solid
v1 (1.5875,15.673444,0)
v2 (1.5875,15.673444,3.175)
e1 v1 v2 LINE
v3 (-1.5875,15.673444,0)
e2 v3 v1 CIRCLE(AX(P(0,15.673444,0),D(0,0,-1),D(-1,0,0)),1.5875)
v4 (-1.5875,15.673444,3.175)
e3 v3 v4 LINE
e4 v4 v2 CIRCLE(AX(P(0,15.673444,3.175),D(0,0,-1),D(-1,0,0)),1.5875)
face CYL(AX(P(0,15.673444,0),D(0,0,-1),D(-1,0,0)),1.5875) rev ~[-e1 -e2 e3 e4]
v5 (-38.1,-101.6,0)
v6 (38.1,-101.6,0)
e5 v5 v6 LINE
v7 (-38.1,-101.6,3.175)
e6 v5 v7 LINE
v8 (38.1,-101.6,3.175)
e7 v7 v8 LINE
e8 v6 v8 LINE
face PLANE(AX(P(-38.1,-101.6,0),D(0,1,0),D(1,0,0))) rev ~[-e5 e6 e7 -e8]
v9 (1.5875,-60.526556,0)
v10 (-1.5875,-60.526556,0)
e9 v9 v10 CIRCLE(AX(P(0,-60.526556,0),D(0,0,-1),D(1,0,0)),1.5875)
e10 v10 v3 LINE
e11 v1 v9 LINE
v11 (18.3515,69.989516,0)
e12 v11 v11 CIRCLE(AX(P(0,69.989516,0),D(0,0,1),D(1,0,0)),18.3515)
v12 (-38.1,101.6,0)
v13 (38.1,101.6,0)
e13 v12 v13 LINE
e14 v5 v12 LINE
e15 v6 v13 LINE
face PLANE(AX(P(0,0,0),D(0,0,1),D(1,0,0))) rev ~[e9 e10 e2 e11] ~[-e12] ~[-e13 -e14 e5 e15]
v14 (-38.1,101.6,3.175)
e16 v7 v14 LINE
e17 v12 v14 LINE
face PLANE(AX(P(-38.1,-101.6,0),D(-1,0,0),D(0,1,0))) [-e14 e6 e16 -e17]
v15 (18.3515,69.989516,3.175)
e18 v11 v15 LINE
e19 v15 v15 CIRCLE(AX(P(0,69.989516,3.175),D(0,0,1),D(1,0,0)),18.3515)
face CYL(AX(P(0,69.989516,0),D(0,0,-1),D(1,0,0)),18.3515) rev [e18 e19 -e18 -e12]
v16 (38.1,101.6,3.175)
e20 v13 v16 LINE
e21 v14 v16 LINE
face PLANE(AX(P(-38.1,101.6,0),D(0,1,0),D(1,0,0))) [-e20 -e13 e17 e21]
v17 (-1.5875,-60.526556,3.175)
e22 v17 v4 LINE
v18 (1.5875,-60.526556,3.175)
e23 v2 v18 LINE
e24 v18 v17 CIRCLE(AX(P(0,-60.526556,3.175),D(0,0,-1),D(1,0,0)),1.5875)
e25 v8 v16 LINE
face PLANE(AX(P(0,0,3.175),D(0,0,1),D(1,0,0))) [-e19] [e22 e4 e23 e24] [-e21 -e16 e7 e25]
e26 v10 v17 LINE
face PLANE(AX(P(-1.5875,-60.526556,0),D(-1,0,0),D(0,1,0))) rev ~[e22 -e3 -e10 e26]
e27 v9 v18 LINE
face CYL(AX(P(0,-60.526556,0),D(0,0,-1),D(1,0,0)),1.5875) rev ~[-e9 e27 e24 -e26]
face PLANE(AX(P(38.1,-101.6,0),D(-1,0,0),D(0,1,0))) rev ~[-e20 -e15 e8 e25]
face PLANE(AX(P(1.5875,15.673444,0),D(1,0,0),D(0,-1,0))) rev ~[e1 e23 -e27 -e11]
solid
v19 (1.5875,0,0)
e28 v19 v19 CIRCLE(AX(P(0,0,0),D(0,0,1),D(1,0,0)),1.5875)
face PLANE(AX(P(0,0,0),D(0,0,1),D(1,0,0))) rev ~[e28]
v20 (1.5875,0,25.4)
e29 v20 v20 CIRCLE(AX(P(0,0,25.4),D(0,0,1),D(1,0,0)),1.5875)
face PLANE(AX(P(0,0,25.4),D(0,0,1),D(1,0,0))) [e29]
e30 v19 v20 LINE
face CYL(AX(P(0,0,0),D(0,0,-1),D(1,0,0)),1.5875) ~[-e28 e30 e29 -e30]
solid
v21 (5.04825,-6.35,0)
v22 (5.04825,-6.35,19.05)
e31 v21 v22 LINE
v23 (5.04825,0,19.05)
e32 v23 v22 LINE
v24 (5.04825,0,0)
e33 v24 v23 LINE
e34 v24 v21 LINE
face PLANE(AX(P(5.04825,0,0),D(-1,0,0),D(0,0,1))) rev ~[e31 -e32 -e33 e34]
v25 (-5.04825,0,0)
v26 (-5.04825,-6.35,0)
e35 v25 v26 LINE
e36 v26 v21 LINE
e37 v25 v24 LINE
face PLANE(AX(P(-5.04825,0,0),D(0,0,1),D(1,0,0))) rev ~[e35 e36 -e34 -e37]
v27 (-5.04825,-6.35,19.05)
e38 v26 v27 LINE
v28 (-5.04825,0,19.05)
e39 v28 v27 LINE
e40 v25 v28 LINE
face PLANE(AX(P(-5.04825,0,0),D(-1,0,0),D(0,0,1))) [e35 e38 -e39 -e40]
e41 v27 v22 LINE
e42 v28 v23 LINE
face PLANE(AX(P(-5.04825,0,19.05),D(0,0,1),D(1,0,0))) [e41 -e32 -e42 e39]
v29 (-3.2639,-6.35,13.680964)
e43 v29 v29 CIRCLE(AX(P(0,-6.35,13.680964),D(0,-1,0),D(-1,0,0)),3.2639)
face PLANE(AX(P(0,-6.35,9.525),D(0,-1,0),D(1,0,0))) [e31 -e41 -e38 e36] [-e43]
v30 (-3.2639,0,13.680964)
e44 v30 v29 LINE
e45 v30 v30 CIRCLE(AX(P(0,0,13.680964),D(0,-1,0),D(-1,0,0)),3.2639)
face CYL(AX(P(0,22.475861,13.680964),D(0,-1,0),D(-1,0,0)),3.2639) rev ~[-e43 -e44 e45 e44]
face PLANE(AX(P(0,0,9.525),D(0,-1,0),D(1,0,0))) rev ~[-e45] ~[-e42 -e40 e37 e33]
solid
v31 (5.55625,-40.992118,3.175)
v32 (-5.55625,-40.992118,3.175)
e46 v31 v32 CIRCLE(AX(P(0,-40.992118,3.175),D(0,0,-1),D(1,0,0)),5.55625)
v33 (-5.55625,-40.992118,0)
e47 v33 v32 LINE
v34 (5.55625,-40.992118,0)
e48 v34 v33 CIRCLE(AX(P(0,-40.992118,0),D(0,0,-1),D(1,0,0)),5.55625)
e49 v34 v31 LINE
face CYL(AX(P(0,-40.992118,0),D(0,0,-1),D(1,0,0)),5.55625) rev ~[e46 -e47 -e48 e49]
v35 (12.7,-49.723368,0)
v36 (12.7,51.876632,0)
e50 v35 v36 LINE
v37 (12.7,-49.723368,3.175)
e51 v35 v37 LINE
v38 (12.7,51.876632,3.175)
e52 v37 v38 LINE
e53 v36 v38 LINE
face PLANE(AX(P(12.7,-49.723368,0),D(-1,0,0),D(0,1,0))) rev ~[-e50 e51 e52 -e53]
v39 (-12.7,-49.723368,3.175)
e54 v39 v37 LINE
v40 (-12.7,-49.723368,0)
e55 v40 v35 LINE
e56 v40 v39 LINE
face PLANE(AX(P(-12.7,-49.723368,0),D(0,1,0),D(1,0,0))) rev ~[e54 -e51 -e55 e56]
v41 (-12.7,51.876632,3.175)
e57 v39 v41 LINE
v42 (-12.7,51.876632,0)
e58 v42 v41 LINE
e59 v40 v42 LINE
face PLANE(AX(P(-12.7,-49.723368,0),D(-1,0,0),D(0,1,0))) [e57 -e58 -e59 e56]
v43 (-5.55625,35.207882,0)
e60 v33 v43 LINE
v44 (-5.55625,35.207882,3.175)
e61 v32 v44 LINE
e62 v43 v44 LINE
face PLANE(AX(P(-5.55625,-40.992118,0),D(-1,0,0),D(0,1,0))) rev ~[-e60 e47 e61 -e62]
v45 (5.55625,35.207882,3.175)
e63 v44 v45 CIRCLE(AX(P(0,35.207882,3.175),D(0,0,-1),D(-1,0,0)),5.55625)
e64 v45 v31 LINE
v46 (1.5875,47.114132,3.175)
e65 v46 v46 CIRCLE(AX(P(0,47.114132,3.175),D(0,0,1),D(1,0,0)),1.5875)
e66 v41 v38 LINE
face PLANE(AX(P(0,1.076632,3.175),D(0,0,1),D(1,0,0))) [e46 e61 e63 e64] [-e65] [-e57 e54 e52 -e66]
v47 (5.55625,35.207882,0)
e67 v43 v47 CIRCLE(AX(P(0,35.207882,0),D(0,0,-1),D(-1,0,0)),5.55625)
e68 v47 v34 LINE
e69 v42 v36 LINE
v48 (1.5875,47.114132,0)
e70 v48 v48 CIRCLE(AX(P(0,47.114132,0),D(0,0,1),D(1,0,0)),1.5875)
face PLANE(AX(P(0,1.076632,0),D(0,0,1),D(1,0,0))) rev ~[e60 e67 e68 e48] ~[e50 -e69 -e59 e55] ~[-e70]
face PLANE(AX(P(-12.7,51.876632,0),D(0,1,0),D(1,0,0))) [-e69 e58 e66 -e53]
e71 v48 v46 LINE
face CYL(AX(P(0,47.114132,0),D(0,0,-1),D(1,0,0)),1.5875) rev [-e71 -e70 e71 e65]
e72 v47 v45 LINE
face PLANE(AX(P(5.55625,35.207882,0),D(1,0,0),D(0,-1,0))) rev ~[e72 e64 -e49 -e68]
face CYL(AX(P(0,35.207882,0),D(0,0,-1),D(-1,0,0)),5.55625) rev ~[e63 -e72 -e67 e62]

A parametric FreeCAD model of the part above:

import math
import FreeCAD as App
import Part
import Sketcher
from FreeCAD import Vector
Q = App.Units.Quantity

doc = App.newDocument("Part")
body = doc.addObject("PartDesign::Body", "Body")

# Sketch on XY plane
sketch1 = body.newObject("Sketcher::SketchObject", "Sketch")
sketch1.AttachmentSupport = (doc.getObject("XY_Plane"), [""])
sketch1.MapMode = "FlatFace"
sketch1.addGeometry(Part.LineSegment(Vector(-38.1, 101.6, 0), Vector(-38.1, -101.6, 0)), False)
sketch1.addGeometry(Part.LineSegment(Vector(-38.1, -101.6, 0), Vector(38.1, -101.6, 0)), False)
sketch1.addGeometry(Part.LineSegment(Vector(38.1, -101.6, 0), Vector(38.1, 101.6, 0)), False)
sketch1.addGeometry(Part.LineSegment(Vector(38.1, 101.6, 0), Vector(-38.1, 101.6, 0)), False)
sketch1.addGeometry(Part.LineSegment(Vector(-1.6, -60.5, 0), Vector(-1.6, 15.7, 0)), False)
sketch1.addGeometry(Part.ArcOfCircle(Part.Circle(Vector(0, 15.7, 0), Vector(0, 0, 1), 1.6), math.radians(0), math.radians(180)), False)
sketch1.addGeometry(Part.LineSegment(Vector(1.6, 15.7, 0), Vector(1.6, -60.5, 0)), False)
sketch1.addGeometry(Part.ArcOfCircle(Part.Circle(Vector(0, -60.5, 0), Vector(0, 0, 1), 1.6), math.radians(180), math.radians(360)), False)
sketch1.addGeometry(Part.Circle(Vector(0, 70, 0), Vector(0, 0, 1), 18.4), False)
sketch1.addConstraint(Sketcher.Constraint("Coincident", 0, 2, 1, 1))
sketch1.addConstraint(Sketcher.Constraint("Coincident", 1, 2, 2, 1))
sketch1.addConstraint(Sketcher.Constraint("Coincident", 2, 2, 3, 1))
sketch1.addConstraint(Sketcher.Constraint("Coincident", 3, 2, 0, 1))
sketch1.addConstraint(Sketcher.Constraint("Tangent", 4, 2, 5, 2))
sketch1.addConstraint(Sketcher.Constraint("Tangent", 5, 1, 6, 1))
sketch1.addConstraint(Sketcher.Constraint("Tangent", 6, 2, 7, 2))
sketch1.addConstraint(Sketcher.Constraint("Tangent", 7, 1, 4, 1))
sketch1.addConstraint(Sketcher.Constraint("Vertical", 0))
sketch1.addConstraint(Sketcher.Constraint("Horizontal", 1))
sketch1.addConstraint(Sketcher.Constraint("Vertical", 2))
sketch1.addConstraint(Sketcher.Constraint("Horizontal", 3))
sketch1.addConstraint(Sketcher.Constraint("Vertical", 4))
sketch1.addConstraint(Sketcher.Constraint("Vertical", 6))
sketch1.addConstraint(Sketcher.Constraint("Symmetric", 0, 2, 2, 2, -1, 1))
sketch1.addConstraint(Sketcher.Constraint("PointOnObject", 5, 3, -2))
sketch1.addConstraint(Sketcher.Constraint("PointOnObject", 8, 3, -2))
sketch1.addConstraint(Sketcher.Constraint("Equal", 3, 4))
sketch1.addConstraint(Sketcher.Constraint("DistanceX", 1, 1, 1, 2, Q("3 in")))
sketch1.addConstraint(Sketcher.Constraint("DistanceY", 0, 2, 0, 1, Q("8 in")))
sketch1.addConstraint(Sketcher.Constraint("Diameter", 8, Q("1.445 in")))
sketch1.addConstraint(Sketcher.Constraint("Radius", 5, Q("0.0625 in")))
sketch1.addConstraint(Sketcher.Constraint("DistanceY", -1, 1, 5, 3, Q("15.673444 mm")))
sketch1.addConstraint(Sketcher.Constraint("DistanceY", -1, 1, 8, 3, Q("69.989516 mm")))
pad1 = body.newObject("PartDesign::Pad", "Pad")
pad1.Profile = sketch1
pad1.Length = Q("0.125 in")
body2 = doc.addObject("PartDesign::Body", "Body001")

# Sketch on XY plane
sketch2 = body2.newObject("Sketcher::SketchObject", "Sketch001")
sketch2.AttachmentSupport = (doc.getObject("XY_Plane001"), [""])
sketch2.MapMode = "FlatFace"
sketch2.addGeometry(Part.LineSegment(Vector(-12.7, 51.9, 0), Vector(-12.7, -49.7, 0)), False)
sketch2.addGeometry(Part.LineSegment(Vector(-12.7, -49.7, 0), Vector(12.7, -49.7, 0)), False)
sketch2.addGeometry(Part.LineSegment(Vector(12.7, -49.7, 0), Vector(12.7, 51.9, 0)), False)
sketch2.addGeometry(Part.LineSegment(Vector(12.7, 51.9, 0), Vector(-12.7, 51.9, 0)), False)
sketch2.addGeometry(Part.LineSegment(Vector(-5.6, -41, 0), Vector(-5.6, 35.2, 0)), False)
sketch2.addGeometry(Part.ArcOfCircle(Part.Circle(Vector(0, 35.2, 0), Vector(0, 0, 1), 5.6), math.radians(0), math.radians(180)), False)
sketch2.addGeometry(Part.LineSegment(Vector(5.6, 35.2, 0), Vector(5.6, -41, 0)), False)
sketch2.addGeometry(Part.ArcOfCircle(Part.Circle(Vector(0, -41, 0), Vector(0, 0, 1), 5.6), math.radians(180), math.radians(360)), False)
sketch2.addGeometry(Part.Circle(Vector(0, 47.1, 0), Vector(0, 0, 1), 1.6), False)
sketch2.addConstraint(Sketcher.Constraint("Coincident", 0, 2, 1, 1))
sketch2.addConstraint(Sketcher.Constraint("Coincident", 1, 2, 2, 1))
sketch2.addConstraint(Sketcher.Constraint("Coincident", 2, 2, 3, 1))
sketch2.addConstraint(Sketcher.Constraint("Coincident", 3, 2, 0, 1))
sketch2.addConstraint(Sketcher.Constraint("Tangent", 4, 2, 5, 2))
sketch2.addConstraint(Sketcher.Constraint("Tangent", 5, 1, 6, 1))
sketch2.addConstraint(Sketcher.Constraint("Tangent", 6, 2, 7, 2))
sketch2.addConstraint(Sketcher.Constraint("Tangent", 7, 1, 4, 1))
sketch2.addConstraint(Sketcher.Constraint("Vertical", 0))
sketch2.addConstraint(Sketcher.Constraint("Horizontal", 1))
sketch2.addConstraint(Sketcher.Constraint("Vertical", 2))
sketch2.addConstraint(Sketcher.Constraint("Horizontal", 3))
sketch2.addConstraint(Sketcher.Constraint("Vertical", 4))
sketch2.addConstraint(Sketcher.Constraint("Vertical", 6))
sketch2.addConstraint(Sketcher.Constraint("PointOnObject", 5, 3, -2))
sketch2.addConstraint(Sketcher.Constraint("PointOnObject", 8, 3, -2))
sketch2.addConstraint(Sketcher.Constraint("DistanceX", 1, 1, 1, 2, Q("1 in")))
sketch2.addConstraint(Sketcher.Constraint("DistanceY", 0, 2, 0, 1, Q("4 in")))
sketch2.addConstraint(Sketcher.Constraint("DistanceY", 4, 1, 4, 2, Q("3 in")))
sketch2.addConstraint(Sketcher.Constraint("Diameter", 8, Q("0.125 in")))
sketch2.addConstraint(Sketcher.Constraint("Radius", 5, Q("0.21875 in")))
sketch2.addConstraint(Sketcher.Constraint("DistanceX", 0, 2, -1, 1, Q("0.5 in")))
sketch2.addConstraint(Sketcher.Constraint("DistanceY", 5, 3, 8, 3, Q("0.46875 in")))
sketch2.addConstraint(Sketcher.Constraint("DistanceY", 0, 2, 7, 3, Q("0.34375 in")))
sketch2.addConstraint(Sketcher.Constraint("DistanceY", -1, 1, 5, 3, Q("35.207882 mm")))
pad2 = body2.newObject("PartDesign::Pad", "Pad001")
pad2.Profile = sketch2
pad2.Length = Q("0.125 in")
body3 = doc.addObject("PartDesign::Body", "Body002")

# Sketch on XY plane
sketch3 = body3.newObject("Sketcher::SketchObject", "Sketch002")
sketch3.AttachmentSupport = (doc.getObject("XY_Plane002"), [""])
sketch3.MapMode = "FlatFace"
sketch3.addGeometry(Part.Circle(Vector(0, 0, 0), Vector(0, 0, 1), 1.6), False)
sketch3.addConstraint(Sketcher.Constraint("Coincident", 0, 3, -1, 1))
sketch3.addConstraint(Sketcher.Constraint("Diameter", 0, Q("0.125 in")))
pad3 = body3.newObject("PartDesign::Pad", "Pad002")
pad3.Profile = sketch3
pad3.Length = Q("1 in")
body4 = doc.addObject("PartDesign::Body", "Body003")

# Sketch on XZ plane
sketch4 = body4.newObject("Sketcher::SketchObject", "Sketch003")
sketch4.AttachmentSupport = (doc.getObject("XZ_Plane003"), [""])
sketch4.MapMode = "FlatFace"
sketch4.addGeometry(Part.LineSegment(Vector(-5, 19, 0), Vector(-5, 0, 0)), False)
sketch4.addGeometry(Part.LineSegment(Vector(-5, 0, 0), Vector(5, 0, 0)), False)
sketch4.addGeometry(Part.LineSegment(Vector(5, 0, 0), Vector(5, 19, 0)), False)
sketch4.addGeometry(Part.LineSegment(Vector(5, 19, 0), Vector(-5, 19, 0)), False)
sketch4.addConstraint(Sketcher.Constraint("Coincident", 0, 2, 1, 1))
sketch4.addConstraint(Sketcher.Constraint("Coincident", 1, 2, 2, 1))
sketch4.addConstraint(Sketcher.Constraint("Coincident", 2, 2, 3, 1))
sketch4.addConstraint(Sketcher.Constraint("Coincident", 3, 2, 0, 1))
sketch4.addConstraint(Sketcher.Constraint("Vertical", 0))
sketch4.addConstraint(Sketcher.Constraint("Horizontal", 1))
sketch4.addConstraint(Sketcher.Constraint("Vertical", 2))
sketch4.addConstraint(Sketcher.Constraint("Horizontal", 3))
sketch4.addConstraint(Sketcher.Constraint("Symmetric", 0, 2, 1, 2, -1, 1))
sketch4.addConstraint(Sketcher.Constraint("DistanceY", 0, 2, 0, 1, Q("0.75 in")))
sketch4.addConstraint(Sketcher.Constraint("DistanceX", 1, 1, 1, 2, Q("0.3975 in")))
pad4 = body4.newObject("PartDesign::Pad", "Pad003")
pad4.Profile = sketch4
pad4.Length = Q("0.25 in")

# Sketch on XZ plane
sketch5 = body4.newObject("Sketcher::SketchObject", "Sketch004")
sketch5.AttachmentSupport = (doc.getObject("XZ_Plane003"), [""])
sketch5.MapMode = "FlatFace"
sketch5.addGeometry(Part.Circle(Vector(0, 13.7, 0), Vector(0, 0, 1), 3.3), False)
sketch5.addConstraint(Sketcher.Constraint("PointOnObject", 0, 3, -2))
sketch5.addConstraint(Sketcher.Constraint("Diameter", 0, Q("0.257 in")))
sketch5.addConstraint(Sketcher.Constraint("DistanceY", -1, 1, 0, 3, Q("13.680964 mm")))
doc.recompute()
hole = body4.newObject("PartDesign::Hole", "Hole")
hole.Profile = sketch5
hole.ThreadType = "None"
hole.Diameter = Q("0.257 in")
hole.DepthType = "ThroughAll"
hole.Reversed = True

doc.recompute()
